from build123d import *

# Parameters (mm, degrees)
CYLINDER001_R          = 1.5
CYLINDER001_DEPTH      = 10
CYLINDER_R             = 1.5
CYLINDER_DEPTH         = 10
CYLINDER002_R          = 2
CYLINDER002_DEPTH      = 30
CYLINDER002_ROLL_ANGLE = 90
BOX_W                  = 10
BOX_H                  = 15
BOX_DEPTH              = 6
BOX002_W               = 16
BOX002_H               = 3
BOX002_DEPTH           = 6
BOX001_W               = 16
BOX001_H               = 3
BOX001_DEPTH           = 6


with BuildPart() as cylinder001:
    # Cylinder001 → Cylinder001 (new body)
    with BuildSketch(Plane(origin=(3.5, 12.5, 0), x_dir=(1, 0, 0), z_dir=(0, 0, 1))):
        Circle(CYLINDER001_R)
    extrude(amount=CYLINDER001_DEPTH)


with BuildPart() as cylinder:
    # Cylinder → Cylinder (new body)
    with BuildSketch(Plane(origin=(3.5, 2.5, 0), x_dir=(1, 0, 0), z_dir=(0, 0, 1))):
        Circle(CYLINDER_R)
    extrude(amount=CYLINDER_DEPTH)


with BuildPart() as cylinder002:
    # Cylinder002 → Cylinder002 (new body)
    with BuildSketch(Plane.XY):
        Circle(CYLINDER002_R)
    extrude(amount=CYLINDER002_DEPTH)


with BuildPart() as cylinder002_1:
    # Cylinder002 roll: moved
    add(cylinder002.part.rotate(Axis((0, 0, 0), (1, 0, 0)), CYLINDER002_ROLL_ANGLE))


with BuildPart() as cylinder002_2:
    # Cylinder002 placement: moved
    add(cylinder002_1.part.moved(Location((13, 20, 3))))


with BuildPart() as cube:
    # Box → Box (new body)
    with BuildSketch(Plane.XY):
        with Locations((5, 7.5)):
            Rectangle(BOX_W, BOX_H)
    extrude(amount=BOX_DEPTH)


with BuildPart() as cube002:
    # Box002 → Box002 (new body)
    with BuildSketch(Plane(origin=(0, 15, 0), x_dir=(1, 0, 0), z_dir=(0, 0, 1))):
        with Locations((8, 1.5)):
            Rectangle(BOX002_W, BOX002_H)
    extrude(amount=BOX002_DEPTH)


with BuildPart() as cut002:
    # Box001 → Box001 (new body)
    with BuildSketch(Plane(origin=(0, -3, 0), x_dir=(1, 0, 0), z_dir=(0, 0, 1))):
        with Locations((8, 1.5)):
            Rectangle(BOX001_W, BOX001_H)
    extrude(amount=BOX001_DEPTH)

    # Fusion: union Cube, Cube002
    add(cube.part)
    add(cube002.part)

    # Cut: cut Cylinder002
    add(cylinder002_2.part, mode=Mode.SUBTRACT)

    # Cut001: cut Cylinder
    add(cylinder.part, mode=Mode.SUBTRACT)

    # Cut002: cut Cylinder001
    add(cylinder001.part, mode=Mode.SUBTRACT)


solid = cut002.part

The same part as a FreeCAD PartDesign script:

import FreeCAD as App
import Part
import Sketcher
from FreeCAD import Vector
Q = App.Units.Quantity


def add_polygon(sketch, points):
    """Adds a closed chain of lines whose ends are joined by coincident constraints."""
    first, n = sketch.GeometryCount, len(points)
    for a, b in zip(points, points[1:] + points[:1]):
        sketch.addGeometry(Part.LineSegment(App.Vector(*a, 0), App.Vector(*b, 0)), False)
    for i in range(n):
        sketch.addConstraint(Sketcher.Constraint("Coincident", first + i, 2, first + (i + 1) % n, 1))

doc = App.newDocument("Part")
params = doc.addObject("Spreadsheet::Sheet", "Params")
for row, (alias, value) in enumerate([
    ("sketch1_diameter", "3 mm"),
    ("pad1_length", "10 mm"),
    ("sketch2_diameter", "3 mm"),
    ("pad2_length", "10 mm"),
    ("sketch3_diameter", "4 mm"),
    ("pad3_length", "30 mm"),
    ("sketch4_width", "10 mm"),
    ("sketch4_height", "15 mm"),
    ("pad4_length", "6 mm"),
    ("sketch5_width", "16 mm"),
    ("sketch5_height", "3 mm"),
    ("pad5_length", "6 mm"),
    ("sketch6_width", "16 mm"),
    ("sketch6_height", "3 mm"),
    ("pad6_length", "6 mm"),
], start=1):
    params.set(f"A{row}", alias)
    params.set(f"B{row}", "=" + value)
    params.setAlias(f"B{row}", alias)

body = doc.addObject("PartDesign::Body", "Body")

# Sketch on XY plane
sketch1 = doc.addObject("Sketcher::SketchObject", "Sketch")
body.addObject(sketch1)
sketch1.AttachmentSupport = (doc.XY_Plane, [""])
sketch1.MapMode = "FlatFace"
sketch1.addGeometry(Part.Circle(Vector(3.5, 12.5, 0), Vector(0, 0, 1), 1.5), False)
sketch1.addConstraint([
    Sketcher.Constraint("Diameter", 0, Q("3 mm")),
    Sketcher.Constraint("DistanceX", -1, 1, 0, 3, Q("3.5 mm")),
    Sketcher.Constraint("DistanceY", -1, 1, 0, 3, Q("12.5 mm")),
])
sketch1.setExpression("Constraints[0]", "Params.sketch1_diameter")
pad1 = doc.addObject("PartDesign::Pad", "Pad")
body.addObject(pad1)
pad1.Profile = sketch1
pad1.setExpression("Length", "Params.pad1_length")
body2 = doc.addObject("PartDesign::Body", "Body001")

# Sketch on XY plane
sketch2 = doc.addObject("Sketcher::SketchObject", "Sketch001")
body2.addObject(sketch2)
sketch2.AttachmentSupport = (doc.getObject("XY_Plane001"), [""])
sketch2.MapMode = "FlatFace"
sketch2.addGeometry(Part.Circle(Vector(3.5, 2.5, 0), Vector(0, 0, 1), 1.5), False)
sketch2.addConstraint([
    Sketcher.Constraint("Diameter", 0, Q("3 mm")),
    Sketcher.Constraint("DistanceX", -1, 1, 0, 3, Q("3.5 mm")),
    Sketcher.Constraint("DistanceY", -1, 1, 0, 3, Q("2.5 mm")),
])
sketch2.setExpression("Constraints[0]", "Params.sketch2_diameter")
pad2 = doc.addObject("PartDesign::Pad", "Pad001")
body2.addObject(pad2)
pad2.Profile = sketch2
pad2.setExpression("Length", "Params.pad2_length")
body3 = doc.addObject("PartDesign::Body", "Body002")

# Sketch on XY plane
sketch3 = doc.addObject("Sketcher::SketchObject", "Sketch002")
body3.addObject(sketch3)
sketch3.AttachmentSupport = (doc.getObject("XY_Plane002"), [""])
sketch3.MapMode = "FlatFace"
sketch3.addGeometry(Part.Circle(Vector(0, 0, 0), Vector(0, 0, 1), 2), False)
sketch3.addConstraint([
    Sketcher.Constraint("Coincident", 0, 3, -1, 1),
    Sketcher.Constraint("Diameter", 0, Q("4 mm")),
])
sketch3.setExpression("Constraints[1]", "Params.sketch3_diameter")
pad3 = doc.addObject("PartDesign::Pad", "Pad002")
body3.addObject(pad3)
pad3.Profile = sketch3
pad3.setExpression("Length", "Params.pad3_length")
body4 = doc.addObject("PartDesign::Body", "Body003")
doc.recompute()

body3.Placement = App.Placement(Vector(0, 0, 0), App.Rotation(Vector(1, 0, 0), 90))
boolean = doc.addObject("PartDesign::Boolean", "Boolean")
body4.addObject(boolean)
boolean.Type = "Fuse"
boolean.addObjects([body3])
body5 = doc.addObject("PartDesign::Body", "Body004")
doc.recompute()

body4.Placement = App.Placement(Vector(13, 20, 3), App.Rotation(Vector(0, 0, 1), 0))
boolean2 = doc.addObject("PartDesign::Boolean", "Boolean001")
body5.addObject(boolean2)
boolean2.Type = "Fuse"
boolean2.addObjects([body4])
body6 = doc.addObject("PartDesign::Body", "Body005")

# Sketch on XY plane
sketch4 = doc.addObject("Sketcher::SketchObject", "Sketch003")
body6.addObject(sketch4)
sketch4.AttachmentSupport = (doc.getObject("XY_Plane005"), [""])
sketch4.MapMode = "FlatFace"
add_polygon(sketch4, [(0, 15), (0, 0), (10, 0), (10, 15)])  # lines 0-3
sketch4.addConstraint([
    Sketcher.Constraint("Vertical", 0),
    Sketcher.Constraint("Horizontal", 1),
    Sketcher.Constraint("Vertical", 2),
    Sketcher.Constraint("Horizontal", 3),
    Sketcher.Constraint("Coincident", 0, 2, -1, 1),
    Sketcher.Constraint("DistanceX", 1, 1, 1, 2, Q("10 mm")),
    Sketcher.Constraint("DistanceY", 0, 2, 0, 1, Q("15 mm")),
])
sketch4.setExpression("Constraints[9]", "Params.sketch4_width")
sketch4.setExpression("Constraints[10]", "Params.sketch4_height")
pad4 = doc.addObject("PartDesign::Pad", "Pad003")
body6.addObject(pad4)
pad4.Profile = sketch4
pad4.setExpression("Length", "Params.pad4_length")
body7 = doc.addObject("PartDesign::Body", "Body006")

# Sketch on XY plane
sketch5 = doc.addObject("Sketcher::SketchObject", "Sketch004")
body7.addObject(sketch5)
sketch5.AttachmentSupport = (doc.getObject("XY_Plane006"), [""])
sketch5.MapMode = "FlatFace"
add_polygon(sketch5, [(0, 18), (0, 15), (16, 15), (16, 18)])  # lines 0-3
sketch5.addConstraint([
    Sketcher.Constraint("Vertical", 0),
    Sketcher.Constraint("Horizontal", 1),
    Sketcher.Constraint("Vertical", 2),
    Sketcher.Constraint("Horizontal", 3),
    Sketcher.Constraint("PointOnObject", 0, 2, -2),
    Sketcher.Constraint("DistanceX", 1, 1, 1, 2, Q("16 mm")),
    Sketcher.Constraint("DistanceY", 0, 2, 0, 1, Q("3 mm")),
    Sketcher.Constraint("DistanceY", -1, 1, 0, 2, Q("15 mm")),
])
sketch5.setExpression("Constraints[9]", "Params.sketch5_width")
sketch5.setExpression("Constraints[10]", "Params.sketch5_height")
pad5 = doc.addObject("PartDesign::Pad", "Pad004")
body7.addObject(pad5)
pad5.Profile = sketch5
pad5.setExpression("Length", "Params.pad5_length")
body8 = doc.addObject("PartDesign::Body", "Body007")

# Sketch on XY plane
sketch6 = doc.addObject("Sketcher::SketchObject", "Sketch005")
body8.addObject(sketch6)
sketch6.AttachmentSupport = (doc.getObject("XY_Plane007"), [""])
sketch6.MapMode = "FlatFace"
add_polygon(sketch6, [(0, 0), (0, -3), (16, -3), (16, 0)])  # lines 0-3
sketch6.addConstraint([
    Sketcher.Constraint("Vertical", 0),
    Sketcher.Constraint("Horizontal", 1),
    Sketcher.Constraint("Vertical", 2),
    Sketcher.Constraint("Horizontal", 3),
    Sketcher.Constraint("Coincident", 3, 2, -1, 1),
    Sketcher.Constraint("DistanceX", 1, 1, 1, 2, Q("16 mm")),
    Sketcher.Constraint("DistanceY", 0, 2, 0, 1, Q("3 mm")),
])
sketch6.setExpression("Constraints[9]", "Params.sketch6_width")
sketch6.setExpression("Constraints[10]", "Params.sketch6_height")
pad6 = doc.addObject("PartDesign::Pad", "Pad005")
body8.addObject(pad6)
pad6.Profile = sketch6
pad6.setExpression("Length", "Params.pad6_length")
doc.recompute()

boolean3 = doc.addObject("PartDesign::Boolean", "Boolean002")
body8.addObject(boolean3)
boolean3.Type = "Fuse"
boolean3.addObjects([body6])
doc.recompute()

boolean4 = doc.addObject("PartDesign::Boolean", "Boolean003")
body8.addObject(boolean4)
boolean4.Type = "Fuse"
boolean4.addObjects([body7])
doc.recompute()

boolean5 = doc.addObject("PartDesign::Boolean", "Boolean004")
body8.addObject(boolean5)
boolean5.Type = "Cut"
boolean5.addObjects([body5])
doc.recompute()

boolean6 = doc.addObject("PartDesign::Boolean", "Boolean005")
body8.addObject(boolean6)
boolean6.Type = "Cut"
boolean6.addObjects([body2])
doc.recompute()

boolean7 = doc.addObject("PartDesign::Boolean", "Boolean006")
body8.addObject(boolean7)
boolean7.Type = "Cut"
boolean7.addObjects([body])

doc.recompute()
